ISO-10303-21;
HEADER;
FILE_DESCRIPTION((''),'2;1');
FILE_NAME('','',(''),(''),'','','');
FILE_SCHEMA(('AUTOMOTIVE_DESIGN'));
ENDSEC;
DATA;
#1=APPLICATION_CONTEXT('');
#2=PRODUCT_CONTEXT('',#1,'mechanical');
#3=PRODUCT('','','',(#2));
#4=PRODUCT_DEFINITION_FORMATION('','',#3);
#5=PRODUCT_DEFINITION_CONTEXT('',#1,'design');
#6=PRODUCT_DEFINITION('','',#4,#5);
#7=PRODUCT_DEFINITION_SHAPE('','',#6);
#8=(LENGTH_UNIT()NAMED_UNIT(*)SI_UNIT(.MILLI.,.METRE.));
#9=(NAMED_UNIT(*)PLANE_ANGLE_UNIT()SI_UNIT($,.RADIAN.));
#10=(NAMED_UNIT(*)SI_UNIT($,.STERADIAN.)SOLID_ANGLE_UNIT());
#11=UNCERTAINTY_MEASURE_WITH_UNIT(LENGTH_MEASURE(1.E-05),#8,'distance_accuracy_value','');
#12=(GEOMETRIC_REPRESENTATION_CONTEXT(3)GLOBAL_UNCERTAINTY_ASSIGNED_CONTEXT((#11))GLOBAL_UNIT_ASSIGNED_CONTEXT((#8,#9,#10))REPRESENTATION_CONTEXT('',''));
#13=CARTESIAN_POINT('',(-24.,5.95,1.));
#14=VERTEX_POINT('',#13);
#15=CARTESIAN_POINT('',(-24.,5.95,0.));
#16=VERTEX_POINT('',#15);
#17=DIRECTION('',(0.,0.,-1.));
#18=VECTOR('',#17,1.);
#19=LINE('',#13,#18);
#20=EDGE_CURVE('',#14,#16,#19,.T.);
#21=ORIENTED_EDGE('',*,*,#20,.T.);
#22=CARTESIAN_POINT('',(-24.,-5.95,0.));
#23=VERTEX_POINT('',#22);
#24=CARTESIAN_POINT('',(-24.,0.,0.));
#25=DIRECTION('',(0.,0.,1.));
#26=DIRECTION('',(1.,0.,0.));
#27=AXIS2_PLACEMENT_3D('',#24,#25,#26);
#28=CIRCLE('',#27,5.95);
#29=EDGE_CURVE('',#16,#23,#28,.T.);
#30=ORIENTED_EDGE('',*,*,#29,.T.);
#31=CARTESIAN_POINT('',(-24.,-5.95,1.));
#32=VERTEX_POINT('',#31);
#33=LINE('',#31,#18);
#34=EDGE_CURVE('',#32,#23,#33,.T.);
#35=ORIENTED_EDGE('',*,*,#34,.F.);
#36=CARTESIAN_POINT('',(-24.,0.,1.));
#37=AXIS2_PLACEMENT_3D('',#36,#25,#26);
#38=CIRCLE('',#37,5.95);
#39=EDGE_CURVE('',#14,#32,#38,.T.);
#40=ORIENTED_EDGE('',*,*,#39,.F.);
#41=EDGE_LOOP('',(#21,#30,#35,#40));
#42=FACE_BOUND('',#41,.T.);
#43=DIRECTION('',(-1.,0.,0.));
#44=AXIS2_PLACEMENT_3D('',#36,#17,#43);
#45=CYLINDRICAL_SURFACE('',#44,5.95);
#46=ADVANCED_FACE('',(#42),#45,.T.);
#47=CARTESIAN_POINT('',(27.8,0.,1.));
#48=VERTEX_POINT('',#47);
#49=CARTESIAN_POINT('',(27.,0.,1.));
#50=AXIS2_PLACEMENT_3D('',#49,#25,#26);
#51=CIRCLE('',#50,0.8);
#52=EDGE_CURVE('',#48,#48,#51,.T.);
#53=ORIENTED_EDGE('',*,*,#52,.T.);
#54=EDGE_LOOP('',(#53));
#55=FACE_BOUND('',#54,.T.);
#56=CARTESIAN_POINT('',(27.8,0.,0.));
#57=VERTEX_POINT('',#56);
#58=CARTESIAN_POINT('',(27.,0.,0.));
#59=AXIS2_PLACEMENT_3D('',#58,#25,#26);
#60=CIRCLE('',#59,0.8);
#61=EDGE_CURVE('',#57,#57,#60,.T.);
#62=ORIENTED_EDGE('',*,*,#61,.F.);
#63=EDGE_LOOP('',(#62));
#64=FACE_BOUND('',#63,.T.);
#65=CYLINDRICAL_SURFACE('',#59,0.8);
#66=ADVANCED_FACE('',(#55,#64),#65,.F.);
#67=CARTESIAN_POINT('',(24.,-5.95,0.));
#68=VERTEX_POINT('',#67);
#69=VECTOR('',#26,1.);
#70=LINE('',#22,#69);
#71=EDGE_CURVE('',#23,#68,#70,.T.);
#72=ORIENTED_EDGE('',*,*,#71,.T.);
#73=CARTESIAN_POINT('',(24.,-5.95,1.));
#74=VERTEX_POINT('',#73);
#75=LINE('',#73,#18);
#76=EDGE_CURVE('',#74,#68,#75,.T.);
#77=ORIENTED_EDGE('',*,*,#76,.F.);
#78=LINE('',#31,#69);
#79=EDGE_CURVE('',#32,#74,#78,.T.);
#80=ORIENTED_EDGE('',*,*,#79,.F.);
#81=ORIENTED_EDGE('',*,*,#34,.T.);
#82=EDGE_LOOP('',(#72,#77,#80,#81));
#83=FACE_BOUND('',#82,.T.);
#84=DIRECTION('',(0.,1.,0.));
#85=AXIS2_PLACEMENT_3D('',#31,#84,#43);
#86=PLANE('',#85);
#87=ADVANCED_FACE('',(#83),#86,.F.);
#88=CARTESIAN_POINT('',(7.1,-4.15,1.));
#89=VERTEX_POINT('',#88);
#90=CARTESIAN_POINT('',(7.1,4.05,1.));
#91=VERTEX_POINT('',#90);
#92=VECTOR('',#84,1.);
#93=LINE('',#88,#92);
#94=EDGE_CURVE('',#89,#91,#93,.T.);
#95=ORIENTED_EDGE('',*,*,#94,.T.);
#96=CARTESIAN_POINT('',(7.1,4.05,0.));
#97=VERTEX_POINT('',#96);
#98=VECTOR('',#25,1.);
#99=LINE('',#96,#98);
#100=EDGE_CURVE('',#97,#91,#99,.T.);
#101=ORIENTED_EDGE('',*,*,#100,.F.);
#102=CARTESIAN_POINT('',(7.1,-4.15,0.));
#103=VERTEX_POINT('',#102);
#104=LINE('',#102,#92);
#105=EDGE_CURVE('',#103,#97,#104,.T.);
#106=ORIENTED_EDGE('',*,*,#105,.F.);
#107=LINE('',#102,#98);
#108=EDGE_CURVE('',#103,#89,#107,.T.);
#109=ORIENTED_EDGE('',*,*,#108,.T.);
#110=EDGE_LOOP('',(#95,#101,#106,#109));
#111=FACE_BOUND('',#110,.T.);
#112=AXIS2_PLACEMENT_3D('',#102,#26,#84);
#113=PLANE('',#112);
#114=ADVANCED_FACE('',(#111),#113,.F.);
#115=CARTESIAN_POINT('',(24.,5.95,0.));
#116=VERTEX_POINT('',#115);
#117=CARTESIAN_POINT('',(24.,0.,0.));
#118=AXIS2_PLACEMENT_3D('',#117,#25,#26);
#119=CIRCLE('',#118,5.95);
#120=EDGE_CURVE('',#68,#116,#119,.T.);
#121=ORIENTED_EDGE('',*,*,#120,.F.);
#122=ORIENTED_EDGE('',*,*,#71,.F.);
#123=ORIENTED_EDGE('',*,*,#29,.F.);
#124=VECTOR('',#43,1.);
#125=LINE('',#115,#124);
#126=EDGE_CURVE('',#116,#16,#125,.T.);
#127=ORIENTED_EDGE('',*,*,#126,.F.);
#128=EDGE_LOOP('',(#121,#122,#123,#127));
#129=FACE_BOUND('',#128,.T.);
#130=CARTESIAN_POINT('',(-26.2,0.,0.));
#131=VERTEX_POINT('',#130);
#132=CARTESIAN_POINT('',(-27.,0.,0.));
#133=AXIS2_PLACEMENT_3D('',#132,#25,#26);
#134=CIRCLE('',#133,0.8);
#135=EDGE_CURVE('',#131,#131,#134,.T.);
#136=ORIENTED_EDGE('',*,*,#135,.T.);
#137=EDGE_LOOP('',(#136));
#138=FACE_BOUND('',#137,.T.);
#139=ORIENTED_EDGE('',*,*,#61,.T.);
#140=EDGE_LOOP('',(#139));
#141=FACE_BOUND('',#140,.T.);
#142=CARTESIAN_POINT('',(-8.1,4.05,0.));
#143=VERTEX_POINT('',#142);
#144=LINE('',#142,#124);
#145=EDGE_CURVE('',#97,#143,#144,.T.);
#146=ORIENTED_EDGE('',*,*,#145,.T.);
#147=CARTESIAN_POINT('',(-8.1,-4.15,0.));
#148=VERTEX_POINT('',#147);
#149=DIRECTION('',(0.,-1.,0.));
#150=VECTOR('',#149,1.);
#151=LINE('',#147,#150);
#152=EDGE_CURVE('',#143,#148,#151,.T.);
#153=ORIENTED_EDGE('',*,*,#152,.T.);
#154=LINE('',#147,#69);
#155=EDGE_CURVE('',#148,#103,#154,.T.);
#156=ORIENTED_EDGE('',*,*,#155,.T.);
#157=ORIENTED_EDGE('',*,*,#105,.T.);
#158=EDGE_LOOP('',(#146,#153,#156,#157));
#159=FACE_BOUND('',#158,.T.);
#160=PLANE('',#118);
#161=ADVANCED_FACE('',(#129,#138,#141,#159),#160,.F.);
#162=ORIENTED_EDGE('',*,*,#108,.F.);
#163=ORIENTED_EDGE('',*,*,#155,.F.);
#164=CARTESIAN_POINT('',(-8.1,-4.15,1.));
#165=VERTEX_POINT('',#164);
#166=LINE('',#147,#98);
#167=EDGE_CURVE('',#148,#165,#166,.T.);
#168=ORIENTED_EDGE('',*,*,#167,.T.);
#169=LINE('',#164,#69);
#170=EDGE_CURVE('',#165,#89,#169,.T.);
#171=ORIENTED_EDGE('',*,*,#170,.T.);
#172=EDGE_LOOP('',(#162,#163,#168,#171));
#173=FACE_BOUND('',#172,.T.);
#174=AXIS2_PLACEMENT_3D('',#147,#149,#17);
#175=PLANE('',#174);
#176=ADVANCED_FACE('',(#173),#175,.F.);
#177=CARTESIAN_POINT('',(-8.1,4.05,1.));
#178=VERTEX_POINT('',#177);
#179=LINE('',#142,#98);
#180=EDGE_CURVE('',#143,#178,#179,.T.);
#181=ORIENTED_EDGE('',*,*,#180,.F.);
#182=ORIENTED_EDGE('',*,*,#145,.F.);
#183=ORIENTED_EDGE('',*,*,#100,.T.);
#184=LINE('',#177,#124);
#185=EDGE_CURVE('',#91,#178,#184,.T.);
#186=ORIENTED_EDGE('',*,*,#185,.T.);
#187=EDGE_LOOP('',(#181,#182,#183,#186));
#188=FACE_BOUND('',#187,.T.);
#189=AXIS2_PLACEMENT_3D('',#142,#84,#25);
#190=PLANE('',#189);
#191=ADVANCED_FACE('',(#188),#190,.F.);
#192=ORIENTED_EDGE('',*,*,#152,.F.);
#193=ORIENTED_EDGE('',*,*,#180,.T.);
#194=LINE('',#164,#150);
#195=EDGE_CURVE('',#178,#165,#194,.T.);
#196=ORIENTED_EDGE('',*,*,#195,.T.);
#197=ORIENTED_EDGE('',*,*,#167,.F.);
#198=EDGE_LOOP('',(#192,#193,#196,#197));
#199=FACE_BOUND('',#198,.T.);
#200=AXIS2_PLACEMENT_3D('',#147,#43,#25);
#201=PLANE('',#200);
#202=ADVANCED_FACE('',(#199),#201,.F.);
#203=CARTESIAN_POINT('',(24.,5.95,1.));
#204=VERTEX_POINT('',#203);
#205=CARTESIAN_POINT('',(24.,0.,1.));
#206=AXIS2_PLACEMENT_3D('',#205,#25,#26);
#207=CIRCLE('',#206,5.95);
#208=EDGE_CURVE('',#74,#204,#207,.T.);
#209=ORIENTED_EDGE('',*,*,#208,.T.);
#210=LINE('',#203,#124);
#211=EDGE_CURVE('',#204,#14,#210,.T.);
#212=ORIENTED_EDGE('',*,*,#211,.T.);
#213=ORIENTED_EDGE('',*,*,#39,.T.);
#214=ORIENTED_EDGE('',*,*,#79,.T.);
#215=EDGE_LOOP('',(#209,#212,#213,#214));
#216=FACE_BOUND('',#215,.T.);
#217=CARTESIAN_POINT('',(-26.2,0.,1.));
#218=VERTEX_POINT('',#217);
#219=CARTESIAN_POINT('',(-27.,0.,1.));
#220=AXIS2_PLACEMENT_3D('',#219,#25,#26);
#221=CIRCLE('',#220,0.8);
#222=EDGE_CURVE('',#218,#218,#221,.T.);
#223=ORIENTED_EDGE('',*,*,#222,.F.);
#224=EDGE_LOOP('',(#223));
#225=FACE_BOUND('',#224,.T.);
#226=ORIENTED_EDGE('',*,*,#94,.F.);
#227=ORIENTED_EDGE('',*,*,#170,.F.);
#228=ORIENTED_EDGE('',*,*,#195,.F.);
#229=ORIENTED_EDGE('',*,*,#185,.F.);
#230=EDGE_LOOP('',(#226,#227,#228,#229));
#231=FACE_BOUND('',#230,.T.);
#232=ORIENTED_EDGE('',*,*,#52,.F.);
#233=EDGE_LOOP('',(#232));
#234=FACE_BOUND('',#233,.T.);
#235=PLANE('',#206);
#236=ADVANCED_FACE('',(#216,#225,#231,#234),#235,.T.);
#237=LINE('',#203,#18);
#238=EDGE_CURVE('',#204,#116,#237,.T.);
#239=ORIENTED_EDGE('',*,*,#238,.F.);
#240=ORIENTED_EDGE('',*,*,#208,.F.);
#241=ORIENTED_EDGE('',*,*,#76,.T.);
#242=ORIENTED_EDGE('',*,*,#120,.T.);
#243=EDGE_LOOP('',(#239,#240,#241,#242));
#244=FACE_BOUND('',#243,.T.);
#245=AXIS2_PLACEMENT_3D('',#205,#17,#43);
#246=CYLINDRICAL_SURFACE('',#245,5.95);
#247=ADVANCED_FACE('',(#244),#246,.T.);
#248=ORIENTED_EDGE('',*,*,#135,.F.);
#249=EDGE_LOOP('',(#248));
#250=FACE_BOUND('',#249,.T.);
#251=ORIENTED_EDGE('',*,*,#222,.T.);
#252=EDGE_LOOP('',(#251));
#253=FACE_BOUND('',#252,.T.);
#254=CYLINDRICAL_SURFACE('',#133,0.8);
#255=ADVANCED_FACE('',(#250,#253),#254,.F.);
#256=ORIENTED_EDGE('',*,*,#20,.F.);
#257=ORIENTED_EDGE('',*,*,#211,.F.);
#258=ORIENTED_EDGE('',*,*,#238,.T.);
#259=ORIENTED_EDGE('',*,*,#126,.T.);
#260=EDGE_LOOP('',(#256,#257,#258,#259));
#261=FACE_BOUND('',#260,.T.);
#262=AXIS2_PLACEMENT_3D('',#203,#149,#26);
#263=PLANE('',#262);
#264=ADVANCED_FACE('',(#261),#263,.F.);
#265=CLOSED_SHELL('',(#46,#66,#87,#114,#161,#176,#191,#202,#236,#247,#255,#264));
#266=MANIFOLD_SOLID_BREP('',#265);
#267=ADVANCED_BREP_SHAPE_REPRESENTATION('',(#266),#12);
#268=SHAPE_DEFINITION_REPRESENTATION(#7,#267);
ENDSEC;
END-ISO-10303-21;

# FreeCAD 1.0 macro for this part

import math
import FreeCAD as App
import Part
import Sketcher

V = App.Vector
Q = App.Units.Quantity


def add_polygon(sketch, points):
    """Adds a closed chain of lines whose ends are joined by coincident constraints."""
    first, n = sketch.GeometryCount, len(points)
    for a, b in zip(points, points[1:] + points[:1]):
        sketch.addGeometry(Part.LineSegment(App.Vector(*a, 0), App.Vector(*b, 0)), False)
    for i in range(n):
        sketch.addConstraint(Sketcher.Constraint("Coincident", first + i, 2, first + (i + 1) % n, 1))

doc = App.newDocument("Part")
body = doc.addObject("PartDesign::Body", "Body")

# Sketch on XY plane
sketch1 = doc.addObject("Sketcher::SketchObject", "Sketch")
body.addObject(sketch1)
sketch1.AttachmentSupport = (doc.XY_Plane, [""])
sketch1.MapMode = "FlatFace"
sketch1.addGeometry(Part.LineSegment(V(24, 6, 0), V(-24, 6, 0)), False)
sketch1.addGeometry(Part.ArcOfCircle(Part.Circle(V(-24, 0, 0), V(0, 0, 1), 6), math.radians(90), math.radians(270)), False)
sketch1.addGeometry(Part.LineSegment(V(-24, -6, 0), V(24, -6, 0)), False)
sketch1.addGeometry(Part.ArcOfCircle(Part.Circle(V(24, 0, 0), V(0, 0, 1), 6), math.radians(-90), math.radians(90)), False)
sketch1.addConstraint(Sketcher.Constraint("Tangent", 0, 2, 1, 1))
sketch1.addConstraint(Sketcher.Constraint("Tangent", 1, 2, 2, 1))
sketch1.addConstraint(Sketcher.Constraint("Tangent", 2, 2, 3, 1))
sketch1.addConstraint(Sketcher.Constraint("Tangent", 3, 2, 0, 1))
sketch1.addConstraint(Sketcher.Constraint("Horizontal", 0))
sketch1.addConstraint(Sketcher.Constraint("Horizontal", 2))
sketch1.addConstraint(Sketcher.Constraint("Symmetric", 1, 3, 3, 3, -1, 1))
sketch1.addConstraint(Sketcher.Constraint("DistanceX", 0, 2, 0, 1, Q("48 mm")))
sketch1.addConstraint(Sketcher.Constraint("Radius", 1, Q("5.95 mm")))
pad1 = doc.addObject("PartDesign::Pad", "Pad")
body.addObject(pad1)
pad1.Profile = sketch1
pad1.Length = 1

# Sketch on XY plane
sketch2 = doc.addObject("Sketcher::SketchObject", "Sketch001")
body.addObject(sketch2)
sketch2.AttachmentSupport = (doc.XY_Plane, [""])
sketch2.MapMode = "FlatFace"
sketch2.AttachmentOffset = App.Placement(V(0, 0, 1), App.Rotation())
sketch2.addGeometry(Part.Circle(V(-27, 0, 0), V(0, 0, 1), 0.8), False)
sketch2.addGeometry(Part.Circle(V(27, 0, 0), V(0, 0, 1), 0.8), False)
sketch2.addConstraint(Sketcher.Constraint("Equal", 0, 1))
sketch2.addConstraint(Sketcher.Constraint("Symmetric", 0, 3, 1, 3, -1, 1))
sketch2.addConstraint(Sketcher.Constraint("PointOnObject", 0, 3, -1))
sketch2.addConstraint(Sketcher.Constraint("Diameter", 0, Q("1.6 mm")))
sketch2.addConstraint(Sketcher.Constraint("DistanceX", 0, 3, -1, 1, Q("27 mm")))
pocket1 = doc.addObject("PartDesign::Pocket", "Pocket")
body.addObject(pocket1)
pocket1.Profile = sketch2
pocket1.Type = "ThroughAll"

# Sketch on XY plane
sketch3 = doc.addObject("Sketcher::SketchObject", "Sketch002")
body.addObject(sketch3)
sketch3.AttachmentSupport = (doc.XY_Plane, [""])
sketch3.MapMode = "FlatFace"
sketch3.AttachmentOffset = App.Placement(V(0, 0, 1), App.Rotation())
add_polygon(sketch3, [(-8, 4), (-8, -4), (7, -4), (7, 4)])  # lines 0-3
sketch3.addConstraint(Sketcher.Constraint("Vertical", 0))
sketch3.addConstraint(Sketcher.Constraint("Horizontal", 1))
sketch3.addConstraint(Sketcher.Constraint("Vertical", 2))
sketch3.addConstraint(Sketcher.Constraint("Horizontal", 3))
sketch3.addConstraint(Sketcher.Constraint("DistanceX", 1, 1, 1, 2, Q("15.2 mm")))
sketch3.addConstraint(Sketcher.Constraint("DistanceY", 0, 2, 0, 1, Q("8.2 mm")))
sketch3.addConstraint(Sketcher.Constraint("DistanceX", 0, 2, -1, 1, Q("8.1 mm")))
sketch3.addConstraint(Sketcher.Constraint("DistanceY", 0, 2, -1, 1, Q("4.15 mm")))
pocket2 = doc.addObject("PartDesign::Pocket", "Pocket001")
body.addObject(pocket2)
pocket2.Profile = sketch3
pocket2.Type = "ThroughAll"

doc.recompute()
